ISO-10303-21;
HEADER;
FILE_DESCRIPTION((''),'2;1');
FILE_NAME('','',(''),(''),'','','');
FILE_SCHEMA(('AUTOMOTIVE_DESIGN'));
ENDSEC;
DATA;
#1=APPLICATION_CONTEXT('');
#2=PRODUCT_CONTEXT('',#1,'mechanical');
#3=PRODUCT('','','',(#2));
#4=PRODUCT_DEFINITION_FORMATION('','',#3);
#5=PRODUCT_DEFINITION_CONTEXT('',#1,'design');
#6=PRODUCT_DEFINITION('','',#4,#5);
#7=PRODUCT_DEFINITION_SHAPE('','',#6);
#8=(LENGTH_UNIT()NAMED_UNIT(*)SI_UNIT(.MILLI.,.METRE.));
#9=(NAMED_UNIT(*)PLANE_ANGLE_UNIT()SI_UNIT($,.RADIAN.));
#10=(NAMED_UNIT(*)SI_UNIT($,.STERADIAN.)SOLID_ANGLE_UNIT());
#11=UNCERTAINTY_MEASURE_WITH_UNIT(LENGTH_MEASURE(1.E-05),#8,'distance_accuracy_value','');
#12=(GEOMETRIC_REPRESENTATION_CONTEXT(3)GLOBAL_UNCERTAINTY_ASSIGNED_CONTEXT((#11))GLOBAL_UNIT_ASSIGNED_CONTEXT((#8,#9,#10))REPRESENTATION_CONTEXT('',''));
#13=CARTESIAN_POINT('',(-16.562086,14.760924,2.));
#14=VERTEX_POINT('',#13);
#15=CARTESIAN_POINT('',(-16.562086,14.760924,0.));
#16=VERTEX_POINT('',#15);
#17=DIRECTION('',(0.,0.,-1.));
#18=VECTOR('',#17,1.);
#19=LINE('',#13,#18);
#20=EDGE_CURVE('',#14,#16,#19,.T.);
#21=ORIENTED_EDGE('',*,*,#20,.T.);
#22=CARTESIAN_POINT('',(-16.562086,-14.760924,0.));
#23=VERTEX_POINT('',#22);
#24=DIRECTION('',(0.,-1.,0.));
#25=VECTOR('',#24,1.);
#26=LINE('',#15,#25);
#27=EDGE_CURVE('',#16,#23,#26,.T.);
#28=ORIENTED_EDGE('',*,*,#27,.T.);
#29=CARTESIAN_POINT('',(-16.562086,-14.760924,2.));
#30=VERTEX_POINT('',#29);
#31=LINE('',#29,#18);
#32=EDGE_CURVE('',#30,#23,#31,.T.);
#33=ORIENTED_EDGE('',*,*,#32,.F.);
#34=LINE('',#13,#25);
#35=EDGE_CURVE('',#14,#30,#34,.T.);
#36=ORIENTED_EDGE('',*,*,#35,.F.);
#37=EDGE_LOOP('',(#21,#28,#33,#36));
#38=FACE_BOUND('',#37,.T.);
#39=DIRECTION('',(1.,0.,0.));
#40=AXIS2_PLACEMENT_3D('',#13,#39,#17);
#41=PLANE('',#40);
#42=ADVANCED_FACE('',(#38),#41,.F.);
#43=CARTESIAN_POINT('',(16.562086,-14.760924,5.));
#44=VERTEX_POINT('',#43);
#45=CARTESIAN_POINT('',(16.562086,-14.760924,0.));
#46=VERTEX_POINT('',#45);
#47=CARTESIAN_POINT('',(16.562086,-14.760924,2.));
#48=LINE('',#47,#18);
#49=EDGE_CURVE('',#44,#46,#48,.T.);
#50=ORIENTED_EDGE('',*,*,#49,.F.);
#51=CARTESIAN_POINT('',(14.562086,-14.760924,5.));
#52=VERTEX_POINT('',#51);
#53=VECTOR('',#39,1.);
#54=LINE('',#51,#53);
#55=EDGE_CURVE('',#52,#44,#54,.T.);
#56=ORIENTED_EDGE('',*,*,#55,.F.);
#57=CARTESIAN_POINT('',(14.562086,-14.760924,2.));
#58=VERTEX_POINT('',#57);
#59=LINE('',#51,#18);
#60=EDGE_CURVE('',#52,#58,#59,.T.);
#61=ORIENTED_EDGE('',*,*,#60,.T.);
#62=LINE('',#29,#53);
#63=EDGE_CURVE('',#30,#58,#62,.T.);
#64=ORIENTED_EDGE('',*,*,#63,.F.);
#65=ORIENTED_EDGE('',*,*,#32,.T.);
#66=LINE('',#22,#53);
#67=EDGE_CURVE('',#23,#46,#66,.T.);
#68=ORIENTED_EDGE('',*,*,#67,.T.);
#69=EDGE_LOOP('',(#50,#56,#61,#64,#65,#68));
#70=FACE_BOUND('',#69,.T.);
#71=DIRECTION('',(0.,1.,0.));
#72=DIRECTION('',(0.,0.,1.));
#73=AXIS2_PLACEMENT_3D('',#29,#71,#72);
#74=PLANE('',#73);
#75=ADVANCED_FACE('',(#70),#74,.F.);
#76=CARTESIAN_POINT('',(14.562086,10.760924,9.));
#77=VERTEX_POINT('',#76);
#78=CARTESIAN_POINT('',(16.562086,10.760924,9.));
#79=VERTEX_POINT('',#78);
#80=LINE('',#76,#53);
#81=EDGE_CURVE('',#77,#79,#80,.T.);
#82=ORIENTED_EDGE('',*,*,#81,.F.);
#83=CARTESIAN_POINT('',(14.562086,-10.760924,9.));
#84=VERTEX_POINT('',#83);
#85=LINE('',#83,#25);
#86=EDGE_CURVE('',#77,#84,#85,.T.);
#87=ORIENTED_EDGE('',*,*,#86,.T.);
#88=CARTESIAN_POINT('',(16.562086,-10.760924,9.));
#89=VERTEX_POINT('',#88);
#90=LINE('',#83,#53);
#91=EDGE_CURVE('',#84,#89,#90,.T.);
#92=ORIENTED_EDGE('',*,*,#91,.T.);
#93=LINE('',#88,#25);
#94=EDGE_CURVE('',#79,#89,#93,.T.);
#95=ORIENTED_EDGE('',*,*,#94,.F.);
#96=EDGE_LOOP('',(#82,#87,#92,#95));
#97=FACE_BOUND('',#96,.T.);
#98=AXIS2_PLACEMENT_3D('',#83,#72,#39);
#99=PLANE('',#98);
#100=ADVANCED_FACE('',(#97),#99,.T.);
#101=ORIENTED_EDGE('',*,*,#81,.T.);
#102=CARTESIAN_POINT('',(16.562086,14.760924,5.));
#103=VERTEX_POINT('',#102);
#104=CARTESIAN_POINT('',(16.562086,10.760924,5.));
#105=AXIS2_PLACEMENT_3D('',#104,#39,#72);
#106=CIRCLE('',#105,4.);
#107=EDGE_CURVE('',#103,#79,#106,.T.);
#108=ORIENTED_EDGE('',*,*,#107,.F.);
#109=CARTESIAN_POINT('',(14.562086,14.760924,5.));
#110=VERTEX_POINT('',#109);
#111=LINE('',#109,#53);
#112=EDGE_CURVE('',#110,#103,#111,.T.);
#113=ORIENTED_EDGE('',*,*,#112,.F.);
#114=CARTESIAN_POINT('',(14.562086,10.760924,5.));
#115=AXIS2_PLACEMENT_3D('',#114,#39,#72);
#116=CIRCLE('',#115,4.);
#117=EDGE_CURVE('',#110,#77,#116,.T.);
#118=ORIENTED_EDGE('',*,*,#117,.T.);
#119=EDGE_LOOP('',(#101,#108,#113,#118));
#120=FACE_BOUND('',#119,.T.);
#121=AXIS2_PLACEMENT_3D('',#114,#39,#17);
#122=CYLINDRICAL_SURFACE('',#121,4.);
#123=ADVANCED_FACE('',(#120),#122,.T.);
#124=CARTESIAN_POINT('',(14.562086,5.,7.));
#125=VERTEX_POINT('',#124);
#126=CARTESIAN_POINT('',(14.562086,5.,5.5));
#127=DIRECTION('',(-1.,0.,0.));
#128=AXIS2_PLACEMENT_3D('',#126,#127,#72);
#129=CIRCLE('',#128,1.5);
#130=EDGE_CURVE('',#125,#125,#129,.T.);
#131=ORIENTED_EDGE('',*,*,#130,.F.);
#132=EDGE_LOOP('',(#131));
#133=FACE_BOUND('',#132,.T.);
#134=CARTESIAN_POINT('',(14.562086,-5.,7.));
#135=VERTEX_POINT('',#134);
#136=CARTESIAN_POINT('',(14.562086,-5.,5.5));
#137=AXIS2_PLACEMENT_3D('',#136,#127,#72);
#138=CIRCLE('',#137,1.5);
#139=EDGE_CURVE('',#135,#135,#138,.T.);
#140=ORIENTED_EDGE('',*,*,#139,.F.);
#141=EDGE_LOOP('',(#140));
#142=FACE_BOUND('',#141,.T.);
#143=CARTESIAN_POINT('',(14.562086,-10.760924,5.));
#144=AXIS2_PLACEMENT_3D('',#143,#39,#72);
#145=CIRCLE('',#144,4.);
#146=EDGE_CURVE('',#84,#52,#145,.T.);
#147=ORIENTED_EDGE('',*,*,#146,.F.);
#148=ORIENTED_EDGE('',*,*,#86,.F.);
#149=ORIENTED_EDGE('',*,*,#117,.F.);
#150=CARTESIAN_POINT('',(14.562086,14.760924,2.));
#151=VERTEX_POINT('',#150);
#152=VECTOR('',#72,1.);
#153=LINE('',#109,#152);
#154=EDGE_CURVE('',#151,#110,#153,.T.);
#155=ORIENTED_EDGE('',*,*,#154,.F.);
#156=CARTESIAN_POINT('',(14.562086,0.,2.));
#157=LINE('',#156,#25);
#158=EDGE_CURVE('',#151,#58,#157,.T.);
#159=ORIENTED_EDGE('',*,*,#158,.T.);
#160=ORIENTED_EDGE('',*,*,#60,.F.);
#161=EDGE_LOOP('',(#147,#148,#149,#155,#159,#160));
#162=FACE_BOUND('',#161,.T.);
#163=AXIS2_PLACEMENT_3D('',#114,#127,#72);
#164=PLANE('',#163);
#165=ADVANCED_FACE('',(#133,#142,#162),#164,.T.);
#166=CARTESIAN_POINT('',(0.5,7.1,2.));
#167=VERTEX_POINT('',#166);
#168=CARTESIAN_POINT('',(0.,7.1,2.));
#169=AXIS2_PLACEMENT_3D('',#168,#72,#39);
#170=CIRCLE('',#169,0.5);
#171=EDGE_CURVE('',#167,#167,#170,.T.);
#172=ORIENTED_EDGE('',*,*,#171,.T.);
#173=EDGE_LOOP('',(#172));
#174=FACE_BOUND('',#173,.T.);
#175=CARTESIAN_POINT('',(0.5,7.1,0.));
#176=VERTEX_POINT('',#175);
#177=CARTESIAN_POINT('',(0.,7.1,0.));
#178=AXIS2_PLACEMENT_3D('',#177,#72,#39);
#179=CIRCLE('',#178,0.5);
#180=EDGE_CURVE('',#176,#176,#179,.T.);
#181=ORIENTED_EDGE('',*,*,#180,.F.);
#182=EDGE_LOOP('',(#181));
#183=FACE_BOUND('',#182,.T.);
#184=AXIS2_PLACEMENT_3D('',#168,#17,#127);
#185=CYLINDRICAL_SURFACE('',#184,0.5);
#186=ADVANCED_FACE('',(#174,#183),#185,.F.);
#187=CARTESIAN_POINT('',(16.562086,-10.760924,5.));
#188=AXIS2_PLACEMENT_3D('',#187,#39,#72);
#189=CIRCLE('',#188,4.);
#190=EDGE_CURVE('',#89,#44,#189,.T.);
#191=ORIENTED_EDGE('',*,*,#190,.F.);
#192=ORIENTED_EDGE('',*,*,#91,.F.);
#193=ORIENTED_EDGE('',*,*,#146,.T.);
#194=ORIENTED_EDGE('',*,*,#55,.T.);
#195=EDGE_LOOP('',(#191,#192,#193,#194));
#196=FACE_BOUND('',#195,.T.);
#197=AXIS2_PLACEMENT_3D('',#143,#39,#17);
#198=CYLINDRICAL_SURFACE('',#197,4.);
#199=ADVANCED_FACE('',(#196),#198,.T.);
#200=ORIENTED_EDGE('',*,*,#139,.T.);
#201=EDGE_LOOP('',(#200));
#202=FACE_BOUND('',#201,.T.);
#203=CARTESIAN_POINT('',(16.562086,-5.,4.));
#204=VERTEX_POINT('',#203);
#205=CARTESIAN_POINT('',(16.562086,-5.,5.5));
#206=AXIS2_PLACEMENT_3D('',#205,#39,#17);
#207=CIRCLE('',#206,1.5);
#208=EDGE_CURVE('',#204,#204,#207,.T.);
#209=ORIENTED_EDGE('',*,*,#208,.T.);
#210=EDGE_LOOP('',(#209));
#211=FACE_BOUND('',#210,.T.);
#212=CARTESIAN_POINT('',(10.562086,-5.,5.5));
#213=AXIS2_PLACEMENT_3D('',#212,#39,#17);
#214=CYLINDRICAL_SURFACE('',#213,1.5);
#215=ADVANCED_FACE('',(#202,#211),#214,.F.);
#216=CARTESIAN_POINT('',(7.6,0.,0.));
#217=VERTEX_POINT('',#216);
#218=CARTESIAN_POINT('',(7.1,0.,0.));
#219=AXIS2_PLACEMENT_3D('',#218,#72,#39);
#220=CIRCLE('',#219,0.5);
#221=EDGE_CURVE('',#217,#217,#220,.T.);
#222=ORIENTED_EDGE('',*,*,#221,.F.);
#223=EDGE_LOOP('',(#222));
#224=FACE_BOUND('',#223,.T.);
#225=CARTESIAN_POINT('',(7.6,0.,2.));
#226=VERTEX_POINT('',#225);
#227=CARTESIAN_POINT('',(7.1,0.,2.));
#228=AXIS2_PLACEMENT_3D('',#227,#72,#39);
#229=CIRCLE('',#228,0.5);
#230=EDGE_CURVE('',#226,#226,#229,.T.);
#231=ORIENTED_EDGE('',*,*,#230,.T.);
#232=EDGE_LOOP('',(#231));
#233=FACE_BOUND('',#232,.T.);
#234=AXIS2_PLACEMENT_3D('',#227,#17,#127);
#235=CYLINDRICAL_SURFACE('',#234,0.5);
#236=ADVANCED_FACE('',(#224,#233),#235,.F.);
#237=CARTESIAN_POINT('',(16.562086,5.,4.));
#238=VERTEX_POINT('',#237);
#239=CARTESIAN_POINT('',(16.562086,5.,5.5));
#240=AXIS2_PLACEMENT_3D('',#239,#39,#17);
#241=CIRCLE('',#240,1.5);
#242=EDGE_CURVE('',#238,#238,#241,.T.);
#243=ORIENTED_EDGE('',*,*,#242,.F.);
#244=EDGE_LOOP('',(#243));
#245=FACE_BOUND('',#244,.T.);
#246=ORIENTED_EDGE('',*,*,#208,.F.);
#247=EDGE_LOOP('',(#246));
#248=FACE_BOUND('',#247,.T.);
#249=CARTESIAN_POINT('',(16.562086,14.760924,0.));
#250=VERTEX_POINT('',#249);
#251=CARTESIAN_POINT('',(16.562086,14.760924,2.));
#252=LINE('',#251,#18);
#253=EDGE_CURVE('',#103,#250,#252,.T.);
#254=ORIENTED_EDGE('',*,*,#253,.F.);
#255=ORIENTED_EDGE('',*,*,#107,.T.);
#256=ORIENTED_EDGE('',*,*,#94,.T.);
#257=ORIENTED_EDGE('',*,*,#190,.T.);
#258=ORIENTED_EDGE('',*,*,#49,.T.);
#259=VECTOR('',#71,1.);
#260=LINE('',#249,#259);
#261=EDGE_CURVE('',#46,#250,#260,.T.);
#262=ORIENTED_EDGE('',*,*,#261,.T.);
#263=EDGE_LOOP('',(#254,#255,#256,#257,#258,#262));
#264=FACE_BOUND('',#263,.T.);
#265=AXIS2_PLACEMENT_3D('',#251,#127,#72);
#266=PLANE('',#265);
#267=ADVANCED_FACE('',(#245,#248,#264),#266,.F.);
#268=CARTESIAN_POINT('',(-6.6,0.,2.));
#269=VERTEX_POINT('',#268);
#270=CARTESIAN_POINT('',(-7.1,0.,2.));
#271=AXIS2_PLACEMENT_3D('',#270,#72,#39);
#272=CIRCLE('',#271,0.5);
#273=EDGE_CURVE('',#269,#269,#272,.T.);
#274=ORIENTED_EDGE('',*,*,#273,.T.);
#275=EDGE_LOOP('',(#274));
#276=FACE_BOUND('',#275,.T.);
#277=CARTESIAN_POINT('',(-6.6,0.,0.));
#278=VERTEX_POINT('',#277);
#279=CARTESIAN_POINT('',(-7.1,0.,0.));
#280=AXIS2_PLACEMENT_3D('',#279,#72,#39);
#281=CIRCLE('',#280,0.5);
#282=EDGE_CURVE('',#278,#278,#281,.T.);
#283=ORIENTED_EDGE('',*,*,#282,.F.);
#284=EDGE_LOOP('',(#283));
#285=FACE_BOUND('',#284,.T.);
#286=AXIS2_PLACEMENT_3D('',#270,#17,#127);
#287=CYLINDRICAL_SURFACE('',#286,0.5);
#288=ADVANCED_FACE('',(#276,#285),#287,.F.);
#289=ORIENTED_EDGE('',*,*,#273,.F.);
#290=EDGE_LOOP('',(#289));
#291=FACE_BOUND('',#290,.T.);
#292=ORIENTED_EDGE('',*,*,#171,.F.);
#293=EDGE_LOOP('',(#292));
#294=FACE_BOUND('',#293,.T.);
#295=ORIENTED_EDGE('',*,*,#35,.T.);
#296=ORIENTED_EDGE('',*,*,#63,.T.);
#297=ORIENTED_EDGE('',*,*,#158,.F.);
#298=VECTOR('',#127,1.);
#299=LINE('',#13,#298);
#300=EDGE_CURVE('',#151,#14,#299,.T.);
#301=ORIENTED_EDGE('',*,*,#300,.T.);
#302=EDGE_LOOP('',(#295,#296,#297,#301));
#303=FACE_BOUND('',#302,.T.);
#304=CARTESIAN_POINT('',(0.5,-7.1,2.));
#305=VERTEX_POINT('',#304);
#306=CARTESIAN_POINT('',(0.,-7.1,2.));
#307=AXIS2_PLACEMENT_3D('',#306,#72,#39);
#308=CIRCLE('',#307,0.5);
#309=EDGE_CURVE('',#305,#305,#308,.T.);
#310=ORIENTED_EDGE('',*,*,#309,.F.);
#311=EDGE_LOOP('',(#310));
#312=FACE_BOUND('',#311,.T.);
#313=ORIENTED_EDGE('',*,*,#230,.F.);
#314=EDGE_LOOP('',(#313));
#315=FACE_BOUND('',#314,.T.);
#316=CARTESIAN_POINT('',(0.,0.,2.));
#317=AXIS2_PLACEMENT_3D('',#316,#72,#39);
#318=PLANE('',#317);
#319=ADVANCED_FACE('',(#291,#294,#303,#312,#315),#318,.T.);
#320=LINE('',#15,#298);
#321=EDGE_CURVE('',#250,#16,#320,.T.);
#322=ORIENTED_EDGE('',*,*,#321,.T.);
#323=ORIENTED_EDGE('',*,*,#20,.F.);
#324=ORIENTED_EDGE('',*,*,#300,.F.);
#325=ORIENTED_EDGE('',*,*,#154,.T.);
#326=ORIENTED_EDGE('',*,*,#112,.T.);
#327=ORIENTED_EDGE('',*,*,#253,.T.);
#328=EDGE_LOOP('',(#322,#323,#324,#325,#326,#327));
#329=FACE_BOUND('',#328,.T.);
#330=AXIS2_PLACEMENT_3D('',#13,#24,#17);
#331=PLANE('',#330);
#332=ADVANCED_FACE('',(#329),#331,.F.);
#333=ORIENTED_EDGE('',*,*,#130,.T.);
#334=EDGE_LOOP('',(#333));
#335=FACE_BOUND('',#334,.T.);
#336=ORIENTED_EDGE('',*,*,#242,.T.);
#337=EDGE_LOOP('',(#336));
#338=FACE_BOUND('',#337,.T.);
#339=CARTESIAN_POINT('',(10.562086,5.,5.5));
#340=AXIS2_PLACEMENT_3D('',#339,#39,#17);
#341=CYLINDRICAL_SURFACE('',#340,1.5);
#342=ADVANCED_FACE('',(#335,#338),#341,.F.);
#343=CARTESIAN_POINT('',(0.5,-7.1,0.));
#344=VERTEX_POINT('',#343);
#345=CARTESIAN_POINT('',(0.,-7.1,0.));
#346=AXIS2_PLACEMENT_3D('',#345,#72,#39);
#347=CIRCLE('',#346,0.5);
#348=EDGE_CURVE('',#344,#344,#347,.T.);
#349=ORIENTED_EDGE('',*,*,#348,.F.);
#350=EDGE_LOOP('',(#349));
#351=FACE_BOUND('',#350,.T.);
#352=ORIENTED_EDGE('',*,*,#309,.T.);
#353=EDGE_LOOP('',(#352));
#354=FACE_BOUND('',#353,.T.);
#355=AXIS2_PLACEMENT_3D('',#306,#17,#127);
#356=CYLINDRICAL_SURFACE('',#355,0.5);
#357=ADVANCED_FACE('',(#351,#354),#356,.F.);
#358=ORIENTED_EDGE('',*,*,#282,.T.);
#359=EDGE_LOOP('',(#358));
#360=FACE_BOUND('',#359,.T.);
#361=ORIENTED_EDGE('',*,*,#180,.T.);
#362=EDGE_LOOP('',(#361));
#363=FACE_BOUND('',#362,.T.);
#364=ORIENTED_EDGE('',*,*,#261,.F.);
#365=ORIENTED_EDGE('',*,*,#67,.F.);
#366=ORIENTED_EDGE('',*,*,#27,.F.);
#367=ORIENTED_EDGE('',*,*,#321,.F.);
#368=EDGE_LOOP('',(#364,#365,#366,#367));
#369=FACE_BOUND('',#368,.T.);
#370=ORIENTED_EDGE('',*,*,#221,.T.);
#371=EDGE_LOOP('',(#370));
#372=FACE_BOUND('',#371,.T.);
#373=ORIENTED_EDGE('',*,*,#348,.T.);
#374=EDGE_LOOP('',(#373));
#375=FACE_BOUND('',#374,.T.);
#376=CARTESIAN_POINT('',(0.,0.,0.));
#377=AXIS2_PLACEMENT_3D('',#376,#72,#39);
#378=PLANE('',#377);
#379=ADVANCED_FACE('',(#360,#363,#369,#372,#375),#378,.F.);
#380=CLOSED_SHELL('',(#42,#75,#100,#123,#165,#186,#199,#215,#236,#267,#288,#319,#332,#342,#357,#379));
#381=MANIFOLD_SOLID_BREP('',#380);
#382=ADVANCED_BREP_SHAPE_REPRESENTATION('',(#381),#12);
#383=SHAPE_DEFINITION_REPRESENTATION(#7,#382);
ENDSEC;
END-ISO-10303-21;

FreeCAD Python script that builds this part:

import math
import FreeCAD as App
import Part
import Sketcher
from FreeCAD import Vector
Q = App.Units.Quantity

doc = App.newDocument("Part")
body = doc.addObject("PartDesign::Body", "Body")

# Sketch on XY plane
sketch1 = doc.addObject("Sketcher::SketchObject", "Sketch")
body.addObject(sketch1)
sketch1.AttachmentSupport = (doc.XY_Plane, [""])
sketch1.MapMode = "FlatFace"
sketch1.addGeometry([
    Part.LineSegment(Vector(-16.562086, 14.760924, 0), Vector(-16.562086, -14.760924, 0)),  # 0
    Part.LineSegment(Vector(-16.562086, -14.760924, 0), Vector(16.562086, -14.760924, 0)),  # 1
    Part.LineSegment(Vector(16.562086, -14.760924, 0), Vector(16.562086, 14.760924, 0)),  # 2
    Part.LineSegment(Vector(16.562086, 14.760924, 0), Vector(-16.562086, 14.760924, 0)),  # 3
    Part.Circle(Vector(0, -7.1, 0), Vector(0, 0, 1), 0.5),  # 4
    Part.Circle(Vector(-7.1, 0, 0), Vector(0, 0, 1), 0.5),  # 5
    Part.Circle(Vector(7.1, 0, 0), Vector(0, 0, 1), 0.5),  # 6
    Part.Circle(Vector(0, 7.1, 0), Vector(0, 0, 1), 0.5),  # 7
], False)
sketch1.addConstraint([
    Sketcher.Constraint("Coincident", 0, 2, 1, 1),
    Sketcher.Constraint("Coincident", 1, 2, 2, 1),
    Sketcher.Constraint("Coincident", 2, 2, 3, 1),
    Sketcher.Constraint("Coincident", 3, 2, 0, 1),
    Sketcher.Constraint("Vertical", 0),
    Sketcher.Constraint("Horizontal", 1),
    Sketcher.Constraint("Vertical", 2),
    Sketcher.Constraint("Horizontal", 3),
    Sketcher.Constraint("Equal", 4, 5),
    Sketcher.Constraint("Equal", 5, 6),
    Sketcher.Constraint("Equal", 6, 7),
    Sketcher.Constraint("Symmetric", 5, 3, 6, 3, -1, 1),
    Sketcher.Constraint("Symmetric", 4, 3, 7, 3, -1, 1),
    Sketcher.Constraint("Symmetric", 0, 2, 2, 2, -1, 1),
    Sketcher.Constraint("PointOnObject", 4, 3, -2),
    Sketcher.Constraint("PointOnObject", 5, 3, -1),
    Sketcher.Constraint("Diameter", 4, Q("1 mm")),
    Sketcher.Constraint("DistanceY", 4, 3, -1, 1, Q("7.1 mm")),
    Sketcher.Constraint("DistanceX", 5, 3, -1, 1, Q("7.1 mm")),
    Sketcher.Constraint("DistanceX", 1, 1, 1, 2, Q("33.124171 mm")),
    Sketcher.Constraint("DistanceY", 0, 2, 0, 1, Q("29.521849 mm")),
])
pad1 = doc.addObject("PartDesign::Pad", "Pad")
body.addObject(pad1)
pad1.Profile = sketch1
pad1.Length = 2

# Sketch on YZ plane
sketch2 = doc.addObject("Sketcher::SketchObject", "Sketch001")
body.addObject(sketch2)
sketch2.AttachmentSupport = (doc.YZ_Plane, [""])
sketch2.MapMode = "FlatFace"
sketch2.AttachmentOffset = App.Placement(Vector(0, 0, 16.562086), App.Rotation())
sketch2.addGeometry([
    Part.LineSegment(Vector(-14.760924, 5, 0), Vector(-14.760924, 0, 0)),  # 0
    Part.LineSegment(Vector(-14.760924, 0, 0), Vector(14.760924, 0, 0)),  # 1
    Part.LineSegment(Vector(14.760924, 0, 0), Vector(14.760924, 5, 0)),  # 2
    Part.ArcOfCircle(Part.Circle(Vector(10.760924, 5, 0), Vector(0, 0, 1), 4), math.radians(0), math.radians(90)),  # 3
    Part.LineSegment(Vector(10.760924, 9, 0), Vector(-10.760924, 9, 0)),  # 4
    Part.ArcOfCircle(Part.Circle(Vector(-10.760924, 5, 0), Vector(0, 0, 1), 4), math.radians(90), math.radians(180)),  # 5
], False)
sketch2.addConstraint([
    Sketcher.Constraint("Coincident", 0, 2, 1, 1),
    Sketcher.Constraint("Coincident", 1, 2, 2, 1),
    Sketcher.Constraint("Tangent", 2, 2, 3, 1),
    Sketcher.Constraint("Tangent", 3, 2, 4, 1),
    Sketcher.Constraint("Tangent", 4, 2, 5, 1),
    Sketcher.Constraint("Tangent", 5, 2, 0, 1),
    Sketcher.Constraint("Vertical", 0),
    Sketcher.Constraint("Horizontal", 1),
    Sketcher.Constraint("Vertical", 2),
    Sketcher.Constraint("Horizontal", 4),
    Sketcher.Constraint("Equal", 3, 5),
    Sketcher.Constraint("Symmetric", 0, 2, 1, 2, -1, 1),
    Sketcher.Constraint("Radius", 3, Q("4 mm")),
    Sketcher.Constraint("DistanceY", 0, 2, 0, 1, Q("5 mm")),
    Sketcher.Constraint("DistanceX", 1, 1, 1, 2, Q("29.521849 mm")),
])
pad2 = doc.addObject("PartDesign::Pad", "Pad001")
body.addObject(pad2)
pad2.Profile = sketch2
pad2.Length = 2
pad2.Reversed = True

# Sketch on YZ plane
sketch3 = doc.addObject("Sketcher::SketchObject", "Sketch002")
body.addObject(sketch3)
sketch3.AttachmentSupport = (doc.YZ_Plane, [""])
sketch3.MapMode = "FlatFace"
sketch3.AttachmentOffset = App.Placement(Vector(0, 0, 16.562086), App.Rotation())
sketch3.addGeometry([
    Part.Circle(Vector(-5, 5.5, 0), Vector(0, 0, 1), 1.5),
    Part.Circle(Vector(5, 5.5, 0), Vector(0, 0, 1), 1.5),
], False)
sketch3.addConstraint([
    Sketcher.Constraint("Equal", 0, 1),
    Sketcher.Constraint("Symmetric", 0, 3, 1, 3, -2),
    Sketcher.Constraint("Diameter", 0, Q("3 mm")),
    Sketcher.Constraint("DistanceX", 0, 3, -1, 1, Q("5 mm")),
    Sketcher.Constraint("DistanceY", -1, 1, 0, 3, Q("5.5 mm")),
])
pocket1 = doc.addObject("PartDesign::Pocket", "Pocket")
body.addObject(pocket1)
pocket1.Profile = sketch3
pocket1.Length = 6

doc.recompute()
